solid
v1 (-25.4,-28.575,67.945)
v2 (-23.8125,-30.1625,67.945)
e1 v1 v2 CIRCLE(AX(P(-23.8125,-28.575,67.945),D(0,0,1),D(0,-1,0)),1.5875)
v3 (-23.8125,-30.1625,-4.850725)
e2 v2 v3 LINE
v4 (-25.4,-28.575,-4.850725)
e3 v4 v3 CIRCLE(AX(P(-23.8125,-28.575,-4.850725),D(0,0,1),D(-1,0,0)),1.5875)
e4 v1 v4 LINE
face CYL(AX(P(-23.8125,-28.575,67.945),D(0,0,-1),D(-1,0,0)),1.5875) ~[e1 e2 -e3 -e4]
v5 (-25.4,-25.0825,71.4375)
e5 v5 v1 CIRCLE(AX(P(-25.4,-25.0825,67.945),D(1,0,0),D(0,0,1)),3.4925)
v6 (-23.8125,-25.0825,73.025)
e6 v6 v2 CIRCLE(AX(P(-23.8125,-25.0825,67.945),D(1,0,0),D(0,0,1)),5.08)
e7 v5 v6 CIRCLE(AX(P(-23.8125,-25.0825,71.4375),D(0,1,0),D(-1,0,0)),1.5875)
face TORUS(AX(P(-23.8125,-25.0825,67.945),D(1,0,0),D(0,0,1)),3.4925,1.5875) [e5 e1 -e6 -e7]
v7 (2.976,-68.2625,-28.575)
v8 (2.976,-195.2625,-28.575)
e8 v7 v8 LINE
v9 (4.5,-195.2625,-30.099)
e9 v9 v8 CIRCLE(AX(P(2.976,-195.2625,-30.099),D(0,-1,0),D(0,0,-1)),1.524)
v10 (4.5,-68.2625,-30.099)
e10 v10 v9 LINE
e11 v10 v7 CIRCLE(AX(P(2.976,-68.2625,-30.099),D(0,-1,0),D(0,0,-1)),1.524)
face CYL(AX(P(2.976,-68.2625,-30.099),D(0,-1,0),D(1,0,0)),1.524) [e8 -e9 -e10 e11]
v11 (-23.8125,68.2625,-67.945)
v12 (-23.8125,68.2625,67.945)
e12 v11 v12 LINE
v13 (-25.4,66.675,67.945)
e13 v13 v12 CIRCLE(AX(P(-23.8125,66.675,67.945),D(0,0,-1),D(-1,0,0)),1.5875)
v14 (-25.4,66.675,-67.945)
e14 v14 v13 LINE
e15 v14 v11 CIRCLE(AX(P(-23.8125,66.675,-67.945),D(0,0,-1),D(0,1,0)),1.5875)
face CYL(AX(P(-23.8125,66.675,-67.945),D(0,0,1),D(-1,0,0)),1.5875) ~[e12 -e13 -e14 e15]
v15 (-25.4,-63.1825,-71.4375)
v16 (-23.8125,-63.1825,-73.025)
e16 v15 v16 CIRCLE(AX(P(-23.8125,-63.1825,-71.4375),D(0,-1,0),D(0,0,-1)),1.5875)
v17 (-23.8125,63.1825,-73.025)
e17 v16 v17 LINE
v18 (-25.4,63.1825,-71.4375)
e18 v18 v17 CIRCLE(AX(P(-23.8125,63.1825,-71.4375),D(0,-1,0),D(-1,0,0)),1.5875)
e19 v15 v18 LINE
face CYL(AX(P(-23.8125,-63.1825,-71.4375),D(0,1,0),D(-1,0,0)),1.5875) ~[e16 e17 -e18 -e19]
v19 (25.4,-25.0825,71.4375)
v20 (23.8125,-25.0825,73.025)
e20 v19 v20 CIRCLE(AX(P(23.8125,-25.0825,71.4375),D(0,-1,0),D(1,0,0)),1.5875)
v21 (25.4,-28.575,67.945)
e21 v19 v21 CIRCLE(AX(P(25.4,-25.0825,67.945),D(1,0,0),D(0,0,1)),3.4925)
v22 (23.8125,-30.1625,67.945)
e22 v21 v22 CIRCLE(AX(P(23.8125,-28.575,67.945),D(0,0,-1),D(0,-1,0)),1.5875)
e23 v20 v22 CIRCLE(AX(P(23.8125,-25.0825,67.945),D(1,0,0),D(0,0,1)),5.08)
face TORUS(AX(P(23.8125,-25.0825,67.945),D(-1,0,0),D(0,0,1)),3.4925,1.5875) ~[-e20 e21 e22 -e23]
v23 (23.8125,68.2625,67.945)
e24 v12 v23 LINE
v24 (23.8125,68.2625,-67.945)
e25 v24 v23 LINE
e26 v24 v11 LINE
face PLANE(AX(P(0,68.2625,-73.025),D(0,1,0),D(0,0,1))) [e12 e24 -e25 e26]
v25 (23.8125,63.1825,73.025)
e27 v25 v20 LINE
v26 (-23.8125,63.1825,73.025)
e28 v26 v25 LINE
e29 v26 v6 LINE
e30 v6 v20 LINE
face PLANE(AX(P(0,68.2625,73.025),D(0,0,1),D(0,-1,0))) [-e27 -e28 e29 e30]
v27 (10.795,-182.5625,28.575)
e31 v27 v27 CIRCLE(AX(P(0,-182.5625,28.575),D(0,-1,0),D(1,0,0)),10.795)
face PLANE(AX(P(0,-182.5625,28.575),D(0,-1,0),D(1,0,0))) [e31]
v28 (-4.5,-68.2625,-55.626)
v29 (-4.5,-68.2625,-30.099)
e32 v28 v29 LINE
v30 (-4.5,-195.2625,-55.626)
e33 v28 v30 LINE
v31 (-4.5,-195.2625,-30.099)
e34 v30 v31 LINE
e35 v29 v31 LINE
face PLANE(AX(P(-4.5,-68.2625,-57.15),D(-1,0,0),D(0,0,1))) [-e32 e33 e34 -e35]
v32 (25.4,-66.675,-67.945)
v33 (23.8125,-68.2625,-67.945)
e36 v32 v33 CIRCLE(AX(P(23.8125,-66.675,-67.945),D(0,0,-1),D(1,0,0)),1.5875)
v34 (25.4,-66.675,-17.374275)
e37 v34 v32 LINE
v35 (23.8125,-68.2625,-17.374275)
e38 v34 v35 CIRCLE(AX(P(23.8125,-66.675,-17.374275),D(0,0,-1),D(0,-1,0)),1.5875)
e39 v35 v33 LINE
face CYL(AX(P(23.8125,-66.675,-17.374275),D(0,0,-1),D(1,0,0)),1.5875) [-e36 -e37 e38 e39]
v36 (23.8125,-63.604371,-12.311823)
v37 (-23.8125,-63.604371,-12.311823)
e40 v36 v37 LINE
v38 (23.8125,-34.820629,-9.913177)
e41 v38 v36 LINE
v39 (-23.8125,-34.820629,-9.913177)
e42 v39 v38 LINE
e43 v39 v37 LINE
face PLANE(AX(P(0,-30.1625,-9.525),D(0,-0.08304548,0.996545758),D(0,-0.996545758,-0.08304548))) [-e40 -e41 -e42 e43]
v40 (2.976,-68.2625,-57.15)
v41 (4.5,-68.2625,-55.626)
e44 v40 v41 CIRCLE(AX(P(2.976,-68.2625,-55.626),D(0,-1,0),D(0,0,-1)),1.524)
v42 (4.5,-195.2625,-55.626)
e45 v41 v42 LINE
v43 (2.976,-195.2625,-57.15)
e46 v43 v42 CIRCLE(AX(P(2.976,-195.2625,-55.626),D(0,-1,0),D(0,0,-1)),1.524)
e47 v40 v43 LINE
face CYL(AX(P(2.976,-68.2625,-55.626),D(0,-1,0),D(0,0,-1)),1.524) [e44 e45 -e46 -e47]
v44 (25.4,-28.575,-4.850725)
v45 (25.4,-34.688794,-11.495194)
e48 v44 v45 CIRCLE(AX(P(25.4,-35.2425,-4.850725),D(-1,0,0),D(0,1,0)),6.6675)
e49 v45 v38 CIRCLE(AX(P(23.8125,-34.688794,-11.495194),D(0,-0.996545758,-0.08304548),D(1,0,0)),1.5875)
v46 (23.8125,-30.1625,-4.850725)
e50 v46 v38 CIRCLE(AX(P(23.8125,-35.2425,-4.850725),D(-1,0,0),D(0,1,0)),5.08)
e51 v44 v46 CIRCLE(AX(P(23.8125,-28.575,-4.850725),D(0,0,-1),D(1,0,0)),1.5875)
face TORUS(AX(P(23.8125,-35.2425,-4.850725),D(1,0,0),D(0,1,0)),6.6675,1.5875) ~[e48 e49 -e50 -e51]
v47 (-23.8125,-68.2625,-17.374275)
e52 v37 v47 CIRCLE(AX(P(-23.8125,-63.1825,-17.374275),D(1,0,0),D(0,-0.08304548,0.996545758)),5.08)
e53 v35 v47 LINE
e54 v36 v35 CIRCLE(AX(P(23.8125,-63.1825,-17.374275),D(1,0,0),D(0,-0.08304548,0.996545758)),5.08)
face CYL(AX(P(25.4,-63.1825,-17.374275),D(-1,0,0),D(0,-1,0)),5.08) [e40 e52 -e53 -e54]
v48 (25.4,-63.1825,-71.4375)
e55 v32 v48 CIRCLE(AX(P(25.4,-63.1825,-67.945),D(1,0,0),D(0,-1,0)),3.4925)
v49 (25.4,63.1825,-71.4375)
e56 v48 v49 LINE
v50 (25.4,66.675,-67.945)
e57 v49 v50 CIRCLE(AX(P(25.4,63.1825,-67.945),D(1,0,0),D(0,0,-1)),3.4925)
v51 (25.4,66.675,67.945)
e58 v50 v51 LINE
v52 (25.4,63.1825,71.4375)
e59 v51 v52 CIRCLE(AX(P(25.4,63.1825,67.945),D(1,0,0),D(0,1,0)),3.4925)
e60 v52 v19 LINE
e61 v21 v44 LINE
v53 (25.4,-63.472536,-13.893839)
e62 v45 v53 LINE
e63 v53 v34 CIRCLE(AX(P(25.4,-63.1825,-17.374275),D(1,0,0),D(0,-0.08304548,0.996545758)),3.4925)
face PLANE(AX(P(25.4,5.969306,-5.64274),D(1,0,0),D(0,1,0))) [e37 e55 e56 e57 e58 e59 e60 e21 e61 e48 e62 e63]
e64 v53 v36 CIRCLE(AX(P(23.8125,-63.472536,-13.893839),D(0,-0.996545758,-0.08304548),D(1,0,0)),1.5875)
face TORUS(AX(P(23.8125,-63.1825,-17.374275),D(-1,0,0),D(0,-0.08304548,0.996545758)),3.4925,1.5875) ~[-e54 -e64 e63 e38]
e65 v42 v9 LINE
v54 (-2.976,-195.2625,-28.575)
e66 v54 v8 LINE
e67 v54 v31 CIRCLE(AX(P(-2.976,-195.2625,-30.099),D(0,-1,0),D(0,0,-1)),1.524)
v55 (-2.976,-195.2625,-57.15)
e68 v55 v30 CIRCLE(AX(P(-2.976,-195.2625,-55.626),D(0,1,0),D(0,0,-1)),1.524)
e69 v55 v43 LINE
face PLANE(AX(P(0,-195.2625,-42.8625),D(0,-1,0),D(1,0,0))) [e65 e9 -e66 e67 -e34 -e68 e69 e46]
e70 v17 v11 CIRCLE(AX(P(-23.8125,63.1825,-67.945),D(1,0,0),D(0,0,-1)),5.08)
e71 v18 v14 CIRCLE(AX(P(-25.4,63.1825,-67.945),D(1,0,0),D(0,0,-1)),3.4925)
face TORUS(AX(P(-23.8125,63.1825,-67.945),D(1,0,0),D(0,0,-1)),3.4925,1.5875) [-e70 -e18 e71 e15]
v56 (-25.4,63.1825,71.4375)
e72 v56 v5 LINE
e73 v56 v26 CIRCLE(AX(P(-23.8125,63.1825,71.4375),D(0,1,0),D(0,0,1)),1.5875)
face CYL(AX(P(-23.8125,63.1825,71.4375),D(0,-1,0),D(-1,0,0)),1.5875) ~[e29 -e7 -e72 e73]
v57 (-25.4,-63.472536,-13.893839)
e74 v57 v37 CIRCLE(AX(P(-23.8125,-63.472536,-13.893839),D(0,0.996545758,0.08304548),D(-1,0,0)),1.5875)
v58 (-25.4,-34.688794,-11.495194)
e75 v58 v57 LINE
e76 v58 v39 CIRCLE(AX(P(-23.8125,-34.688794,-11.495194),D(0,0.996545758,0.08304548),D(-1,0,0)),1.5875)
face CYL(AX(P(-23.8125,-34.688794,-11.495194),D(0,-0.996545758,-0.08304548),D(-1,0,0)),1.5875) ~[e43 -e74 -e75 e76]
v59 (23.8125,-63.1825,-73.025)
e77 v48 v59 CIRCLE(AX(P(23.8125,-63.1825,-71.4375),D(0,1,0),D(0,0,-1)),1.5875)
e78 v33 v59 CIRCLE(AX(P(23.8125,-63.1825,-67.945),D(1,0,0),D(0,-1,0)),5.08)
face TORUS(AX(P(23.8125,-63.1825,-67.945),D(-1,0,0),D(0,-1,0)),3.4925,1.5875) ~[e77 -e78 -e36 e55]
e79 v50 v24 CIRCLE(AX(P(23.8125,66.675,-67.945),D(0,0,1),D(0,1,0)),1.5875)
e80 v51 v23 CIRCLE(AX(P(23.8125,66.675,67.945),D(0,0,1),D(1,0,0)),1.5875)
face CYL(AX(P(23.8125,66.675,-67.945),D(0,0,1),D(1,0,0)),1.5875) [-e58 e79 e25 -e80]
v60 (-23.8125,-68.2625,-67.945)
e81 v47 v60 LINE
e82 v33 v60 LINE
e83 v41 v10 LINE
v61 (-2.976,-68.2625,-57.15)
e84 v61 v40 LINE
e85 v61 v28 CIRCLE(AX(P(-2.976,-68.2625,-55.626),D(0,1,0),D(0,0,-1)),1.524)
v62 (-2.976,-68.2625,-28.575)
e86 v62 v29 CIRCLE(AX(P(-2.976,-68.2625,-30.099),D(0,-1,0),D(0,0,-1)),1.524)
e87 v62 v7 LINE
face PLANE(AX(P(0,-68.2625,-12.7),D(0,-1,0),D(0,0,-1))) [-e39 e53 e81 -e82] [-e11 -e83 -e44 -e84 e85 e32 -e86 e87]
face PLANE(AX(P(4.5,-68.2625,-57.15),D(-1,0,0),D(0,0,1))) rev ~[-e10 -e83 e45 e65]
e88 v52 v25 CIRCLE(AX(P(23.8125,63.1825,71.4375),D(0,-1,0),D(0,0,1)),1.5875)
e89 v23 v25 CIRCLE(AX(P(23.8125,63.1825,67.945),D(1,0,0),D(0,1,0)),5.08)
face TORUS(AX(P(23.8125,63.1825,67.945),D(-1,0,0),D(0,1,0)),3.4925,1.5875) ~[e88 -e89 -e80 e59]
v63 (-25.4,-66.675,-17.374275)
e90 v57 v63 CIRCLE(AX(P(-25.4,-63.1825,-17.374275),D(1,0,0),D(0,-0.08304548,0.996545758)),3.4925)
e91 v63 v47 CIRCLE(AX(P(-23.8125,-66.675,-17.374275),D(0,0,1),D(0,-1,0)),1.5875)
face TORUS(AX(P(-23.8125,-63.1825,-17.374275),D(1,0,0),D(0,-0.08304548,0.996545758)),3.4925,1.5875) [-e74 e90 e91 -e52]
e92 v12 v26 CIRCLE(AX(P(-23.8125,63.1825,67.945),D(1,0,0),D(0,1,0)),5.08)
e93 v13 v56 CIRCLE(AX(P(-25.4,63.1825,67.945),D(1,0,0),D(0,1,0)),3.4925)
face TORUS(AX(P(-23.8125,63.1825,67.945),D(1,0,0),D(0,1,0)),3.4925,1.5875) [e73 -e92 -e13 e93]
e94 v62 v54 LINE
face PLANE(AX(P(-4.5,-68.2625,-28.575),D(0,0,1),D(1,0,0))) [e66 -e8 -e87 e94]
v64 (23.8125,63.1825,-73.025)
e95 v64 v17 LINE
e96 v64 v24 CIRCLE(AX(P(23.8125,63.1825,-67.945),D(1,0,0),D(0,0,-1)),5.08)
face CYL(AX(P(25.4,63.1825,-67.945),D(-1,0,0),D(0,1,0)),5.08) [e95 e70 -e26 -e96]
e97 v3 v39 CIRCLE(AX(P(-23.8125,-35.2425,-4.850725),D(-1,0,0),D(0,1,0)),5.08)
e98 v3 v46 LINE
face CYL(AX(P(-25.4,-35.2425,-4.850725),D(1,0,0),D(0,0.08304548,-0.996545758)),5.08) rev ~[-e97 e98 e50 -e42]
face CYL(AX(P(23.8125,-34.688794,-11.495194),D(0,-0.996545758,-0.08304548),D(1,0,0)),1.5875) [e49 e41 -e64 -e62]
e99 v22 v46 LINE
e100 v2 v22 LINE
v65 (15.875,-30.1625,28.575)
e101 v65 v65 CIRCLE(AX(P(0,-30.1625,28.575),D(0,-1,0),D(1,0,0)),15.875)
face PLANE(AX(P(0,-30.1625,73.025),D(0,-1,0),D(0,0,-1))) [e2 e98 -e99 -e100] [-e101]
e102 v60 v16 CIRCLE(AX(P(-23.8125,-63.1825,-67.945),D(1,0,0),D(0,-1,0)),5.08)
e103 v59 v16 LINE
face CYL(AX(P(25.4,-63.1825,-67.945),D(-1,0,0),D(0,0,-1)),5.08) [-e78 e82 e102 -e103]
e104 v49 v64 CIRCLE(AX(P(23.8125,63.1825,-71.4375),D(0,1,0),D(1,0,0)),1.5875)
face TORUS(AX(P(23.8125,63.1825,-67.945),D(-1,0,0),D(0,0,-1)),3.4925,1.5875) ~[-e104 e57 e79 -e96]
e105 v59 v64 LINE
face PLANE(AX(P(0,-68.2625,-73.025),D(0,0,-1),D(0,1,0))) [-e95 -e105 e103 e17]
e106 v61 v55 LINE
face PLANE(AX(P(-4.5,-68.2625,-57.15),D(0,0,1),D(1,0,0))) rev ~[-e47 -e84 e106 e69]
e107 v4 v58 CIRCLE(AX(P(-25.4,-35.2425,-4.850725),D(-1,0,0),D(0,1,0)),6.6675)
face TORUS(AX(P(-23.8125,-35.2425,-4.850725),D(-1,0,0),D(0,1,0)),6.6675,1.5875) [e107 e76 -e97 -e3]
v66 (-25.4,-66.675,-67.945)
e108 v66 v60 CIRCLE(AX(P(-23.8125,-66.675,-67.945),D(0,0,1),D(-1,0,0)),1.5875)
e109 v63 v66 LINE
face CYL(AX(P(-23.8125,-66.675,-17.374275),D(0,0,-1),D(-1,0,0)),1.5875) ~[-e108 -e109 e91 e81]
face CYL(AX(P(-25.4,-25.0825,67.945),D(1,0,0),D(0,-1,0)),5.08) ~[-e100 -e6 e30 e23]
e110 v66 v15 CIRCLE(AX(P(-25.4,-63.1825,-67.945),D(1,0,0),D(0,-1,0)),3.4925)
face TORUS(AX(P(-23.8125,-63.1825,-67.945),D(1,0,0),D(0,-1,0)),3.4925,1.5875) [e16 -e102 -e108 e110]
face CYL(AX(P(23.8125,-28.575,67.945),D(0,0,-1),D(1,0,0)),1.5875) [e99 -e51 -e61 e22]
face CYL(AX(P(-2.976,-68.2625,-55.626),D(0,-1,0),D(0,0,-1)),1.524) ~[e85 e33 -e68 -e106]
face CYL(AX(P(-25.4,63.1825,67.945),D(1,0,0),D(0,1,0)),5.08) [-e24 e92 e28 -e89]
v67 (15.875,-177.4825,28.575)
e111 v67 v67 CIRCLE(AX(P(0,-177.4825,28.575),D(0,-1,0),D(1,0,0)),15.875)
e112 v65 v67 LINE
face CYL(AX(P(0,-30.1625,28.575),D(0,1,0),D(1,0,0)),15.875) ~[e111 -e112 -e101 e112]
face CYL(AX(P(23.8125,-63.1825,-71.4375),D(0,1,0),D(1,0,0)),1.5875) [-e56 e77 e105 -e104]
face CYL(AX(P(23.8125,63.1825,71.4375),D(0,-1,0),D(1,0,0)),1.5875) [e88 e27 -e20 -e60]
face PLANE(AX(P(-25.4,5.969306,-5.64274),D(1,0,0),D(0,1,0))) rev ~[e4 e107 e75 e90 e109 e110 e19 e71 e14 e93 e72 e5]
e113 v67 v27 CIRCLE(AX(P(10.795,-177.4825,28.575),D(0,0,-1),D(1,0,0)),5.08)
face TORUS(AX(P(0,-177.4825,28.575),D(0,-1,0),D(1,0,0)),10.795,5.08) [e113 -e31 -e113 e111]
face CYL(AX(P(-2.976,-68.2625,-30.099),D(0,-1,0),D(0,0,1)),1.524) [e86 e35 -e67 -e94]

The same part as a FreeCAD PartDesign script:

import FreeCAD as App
import Part
import Sketcher
from FreeCAD import Vector
Q = App.Units.Quantity


def edges_at(feature, points):
    """Names of the edges that pass closest to the given points."""
    edges = feature.Shape.Edges
    near = lambda p: min(range(len(edges)), key=lambda i: edges[i].distToShape(Part.Vertex(*p))[0])
    return sorted({f"Edge{near(p) + 1}" for p in points})


def add_polygon(sketch, points):
    """Adds a closed chain of lines whose ends are joined by coincident constraints."""
    first, n = sketch.GeometryCount, len(points)
    for a, b in zip(points, points[1:] + points[:1]):
        sketch.addGeometry(Part.LineSegment(App.Vector(*a, 0), App.Vector(*b, 0)), False)
    for i in range(n):
        sketch.addConstraint(Sketcher.Constraint("Coincident", first + i, 2, first + (i + 1) % n, 1))

doc = App.newDocument("Part")
body = doc.addObject("PartDesign::Body", "Body")

sketch1 = body.newObject("Sketcher::SketchObject", "Sketch")
sketch1.AttachmentSupport = (doc.getObject("YZ_Plane"), [""])
sketch1.MapMode = "FlatFace"
add_polygon(sketch1, [(68, -73), (68, 73), (-30, 73), (-30, -10), (-68, -13), (-68, -73)])
sketch1.addConstraint([
    Sketcher.Constraint("Vertical", 0),
    Sketcher.Constraint("Horizontal", 1),
    Sketcher.Constraint("Vertical", 2),
    Sketcher.Constraint("Vertical", 4),
    Sketcher.Constraint("Horizontal", 5),
    Sketcher.Constraint("Symmetric", 0, 2, 4, 2, -1, 1),
    Sketcher.Constraint("DistanceY", 0, 1, 0, 2, Q("5.75 in")),
    Sketcher.Constraint("DistanceY", 2, 2, 2, 1, Q("3.25 in")),
    Sketcher.Constraint("DistanceY", 3, 2, -1, 1, Q("0.5 in")),
    Sketcher.Constraint("DistanceX", 3, 2, 2, 2, Q("1.5 in")),
    Sketcher.Constraint("DistanceX", 1, 2, 1, 1, Q("3.875 in")),
])
pad1 = body.newObject("PartDesign::Pad", "Pad")
pad1.Profile = sketch1
pad1.Length = Q("2 in")
pad1.Midplane = True
doc.recompute()

fillet = body.newObject("PartDesign::Fillet", "Fillet")
fillet.Base = (pad1, edges_at(pad1, [
    (0, -68.263, -12.7),
    (0, -30.163, -9.525),
    (0, -30.163, 73.025),
    (0, 68.263, 73.025),
    (0, 68.263, -73.025),
    (0, -68.263, -73.025),
]))
fillet.Radius = Q("0.2 in")
doc.recompute()

fillet2 = body.newObject("PartDesign::Fillet", "Fillet001")
fillet2.Base = (fillet, edges_at(fillet, [(25.4, -49.212, -11.113), (-25.4, -49.212, -11.113)]))
fillet2.Radius = Q("0.0625 in")

sketch2 = body.newObject("Sketcher::SketchObject", "Sketch001")
sketch2.AttachmentSupport = (doc.getObject("XZ_Plane"), [""])
sketch2.MapMode = "FlatFace"
sketch2.AttachmentOffset = App.Placement(Vector(0, 0, 2.6875 * 25.4), App.Rotation())
add_polygon(sketch2, [(-4, -29), (-4, -57), (4, -57), (4, -29)])
sketch2.addConstraint([
    Sketcher.Constraint("Vertical", 0),
    Sketcher.Constraint("Horizontal", 1),
    Sketcher.Constraint("Vertical", 2),
    Sketcher.Constraint("Horizontal", 3),
    Sketcher.Constraint("DistanceY", 0, 2, 0, 1, Q("1.125 in")),
    Sketcher.Constraint("DistanceY", 0, 2, -1, 1, Q("2.25 in")),
    Sketcher.Constraint("DistanceX", 1, 1, 1, 2, Q("9 mm")),
    Sketcher.Constraint("DistanceX", 0, 2, -1, 1, Q("4.5 mm")),
])
pad2 = body.newObject("PartDesign::Pad", "Pad001")
pad2.Profile = sketch2
pad2.Length = Q("5 in")
doc.recompute()

fillet3 = body.newObject("PartDesign::Fillet", "Fillet002")
fillet3.Base = (pad2, edges_at(pad2, [
    (4.5, -131.762, -28.575),
    (-4.5, -131.762, -28.575),
    (4.5, -131.762, -57.15),
    (-4.5, -131.762, -57.15),
]))
fillet3.Radius = Q("0.06 in")

sketch3 = body.newObject("Sketcher::SketchObject", "Sketch002")
sketch3.AttachmentSupport = (doc.getObject("XZ_Plane"), [""])
sketch3.MapMode = "FlatFace"
sketch3.AttachmentOffset = App.Placement(Vector(0, 0, 1.1875 * 25.4), App.Rotation())
sketch3.addGeometry(Part.Circle(Vector(0, 29, 0), Vector(0, 0, 1), 16), False)
sketch3.addConstraint([
    Sketcher.Constraint("PointOnObject", 0, 3, -2),
    Sketcher.Constraint("Diameter", 0, Q("1.25 in")),
    Sketcher.Constraint("DistanceY", -1, 1, 0, 3, Q("1.125 in")),
])
pad3 = body.newObject("PartDesign::Pad", "Pad002")
pad3.Profile = sketch3
pad3.Length = Q("6 in")
doc.recompute()

fillet4 = body.newObject("PartDesign::Fillet", "Fillet003")
fillet4.Base = (pad3, edges_at(pad3, [(-15.875, -182.562, 28.575)]))
fillet4.Radius = Q("0.2 in")

doc.recompute()
